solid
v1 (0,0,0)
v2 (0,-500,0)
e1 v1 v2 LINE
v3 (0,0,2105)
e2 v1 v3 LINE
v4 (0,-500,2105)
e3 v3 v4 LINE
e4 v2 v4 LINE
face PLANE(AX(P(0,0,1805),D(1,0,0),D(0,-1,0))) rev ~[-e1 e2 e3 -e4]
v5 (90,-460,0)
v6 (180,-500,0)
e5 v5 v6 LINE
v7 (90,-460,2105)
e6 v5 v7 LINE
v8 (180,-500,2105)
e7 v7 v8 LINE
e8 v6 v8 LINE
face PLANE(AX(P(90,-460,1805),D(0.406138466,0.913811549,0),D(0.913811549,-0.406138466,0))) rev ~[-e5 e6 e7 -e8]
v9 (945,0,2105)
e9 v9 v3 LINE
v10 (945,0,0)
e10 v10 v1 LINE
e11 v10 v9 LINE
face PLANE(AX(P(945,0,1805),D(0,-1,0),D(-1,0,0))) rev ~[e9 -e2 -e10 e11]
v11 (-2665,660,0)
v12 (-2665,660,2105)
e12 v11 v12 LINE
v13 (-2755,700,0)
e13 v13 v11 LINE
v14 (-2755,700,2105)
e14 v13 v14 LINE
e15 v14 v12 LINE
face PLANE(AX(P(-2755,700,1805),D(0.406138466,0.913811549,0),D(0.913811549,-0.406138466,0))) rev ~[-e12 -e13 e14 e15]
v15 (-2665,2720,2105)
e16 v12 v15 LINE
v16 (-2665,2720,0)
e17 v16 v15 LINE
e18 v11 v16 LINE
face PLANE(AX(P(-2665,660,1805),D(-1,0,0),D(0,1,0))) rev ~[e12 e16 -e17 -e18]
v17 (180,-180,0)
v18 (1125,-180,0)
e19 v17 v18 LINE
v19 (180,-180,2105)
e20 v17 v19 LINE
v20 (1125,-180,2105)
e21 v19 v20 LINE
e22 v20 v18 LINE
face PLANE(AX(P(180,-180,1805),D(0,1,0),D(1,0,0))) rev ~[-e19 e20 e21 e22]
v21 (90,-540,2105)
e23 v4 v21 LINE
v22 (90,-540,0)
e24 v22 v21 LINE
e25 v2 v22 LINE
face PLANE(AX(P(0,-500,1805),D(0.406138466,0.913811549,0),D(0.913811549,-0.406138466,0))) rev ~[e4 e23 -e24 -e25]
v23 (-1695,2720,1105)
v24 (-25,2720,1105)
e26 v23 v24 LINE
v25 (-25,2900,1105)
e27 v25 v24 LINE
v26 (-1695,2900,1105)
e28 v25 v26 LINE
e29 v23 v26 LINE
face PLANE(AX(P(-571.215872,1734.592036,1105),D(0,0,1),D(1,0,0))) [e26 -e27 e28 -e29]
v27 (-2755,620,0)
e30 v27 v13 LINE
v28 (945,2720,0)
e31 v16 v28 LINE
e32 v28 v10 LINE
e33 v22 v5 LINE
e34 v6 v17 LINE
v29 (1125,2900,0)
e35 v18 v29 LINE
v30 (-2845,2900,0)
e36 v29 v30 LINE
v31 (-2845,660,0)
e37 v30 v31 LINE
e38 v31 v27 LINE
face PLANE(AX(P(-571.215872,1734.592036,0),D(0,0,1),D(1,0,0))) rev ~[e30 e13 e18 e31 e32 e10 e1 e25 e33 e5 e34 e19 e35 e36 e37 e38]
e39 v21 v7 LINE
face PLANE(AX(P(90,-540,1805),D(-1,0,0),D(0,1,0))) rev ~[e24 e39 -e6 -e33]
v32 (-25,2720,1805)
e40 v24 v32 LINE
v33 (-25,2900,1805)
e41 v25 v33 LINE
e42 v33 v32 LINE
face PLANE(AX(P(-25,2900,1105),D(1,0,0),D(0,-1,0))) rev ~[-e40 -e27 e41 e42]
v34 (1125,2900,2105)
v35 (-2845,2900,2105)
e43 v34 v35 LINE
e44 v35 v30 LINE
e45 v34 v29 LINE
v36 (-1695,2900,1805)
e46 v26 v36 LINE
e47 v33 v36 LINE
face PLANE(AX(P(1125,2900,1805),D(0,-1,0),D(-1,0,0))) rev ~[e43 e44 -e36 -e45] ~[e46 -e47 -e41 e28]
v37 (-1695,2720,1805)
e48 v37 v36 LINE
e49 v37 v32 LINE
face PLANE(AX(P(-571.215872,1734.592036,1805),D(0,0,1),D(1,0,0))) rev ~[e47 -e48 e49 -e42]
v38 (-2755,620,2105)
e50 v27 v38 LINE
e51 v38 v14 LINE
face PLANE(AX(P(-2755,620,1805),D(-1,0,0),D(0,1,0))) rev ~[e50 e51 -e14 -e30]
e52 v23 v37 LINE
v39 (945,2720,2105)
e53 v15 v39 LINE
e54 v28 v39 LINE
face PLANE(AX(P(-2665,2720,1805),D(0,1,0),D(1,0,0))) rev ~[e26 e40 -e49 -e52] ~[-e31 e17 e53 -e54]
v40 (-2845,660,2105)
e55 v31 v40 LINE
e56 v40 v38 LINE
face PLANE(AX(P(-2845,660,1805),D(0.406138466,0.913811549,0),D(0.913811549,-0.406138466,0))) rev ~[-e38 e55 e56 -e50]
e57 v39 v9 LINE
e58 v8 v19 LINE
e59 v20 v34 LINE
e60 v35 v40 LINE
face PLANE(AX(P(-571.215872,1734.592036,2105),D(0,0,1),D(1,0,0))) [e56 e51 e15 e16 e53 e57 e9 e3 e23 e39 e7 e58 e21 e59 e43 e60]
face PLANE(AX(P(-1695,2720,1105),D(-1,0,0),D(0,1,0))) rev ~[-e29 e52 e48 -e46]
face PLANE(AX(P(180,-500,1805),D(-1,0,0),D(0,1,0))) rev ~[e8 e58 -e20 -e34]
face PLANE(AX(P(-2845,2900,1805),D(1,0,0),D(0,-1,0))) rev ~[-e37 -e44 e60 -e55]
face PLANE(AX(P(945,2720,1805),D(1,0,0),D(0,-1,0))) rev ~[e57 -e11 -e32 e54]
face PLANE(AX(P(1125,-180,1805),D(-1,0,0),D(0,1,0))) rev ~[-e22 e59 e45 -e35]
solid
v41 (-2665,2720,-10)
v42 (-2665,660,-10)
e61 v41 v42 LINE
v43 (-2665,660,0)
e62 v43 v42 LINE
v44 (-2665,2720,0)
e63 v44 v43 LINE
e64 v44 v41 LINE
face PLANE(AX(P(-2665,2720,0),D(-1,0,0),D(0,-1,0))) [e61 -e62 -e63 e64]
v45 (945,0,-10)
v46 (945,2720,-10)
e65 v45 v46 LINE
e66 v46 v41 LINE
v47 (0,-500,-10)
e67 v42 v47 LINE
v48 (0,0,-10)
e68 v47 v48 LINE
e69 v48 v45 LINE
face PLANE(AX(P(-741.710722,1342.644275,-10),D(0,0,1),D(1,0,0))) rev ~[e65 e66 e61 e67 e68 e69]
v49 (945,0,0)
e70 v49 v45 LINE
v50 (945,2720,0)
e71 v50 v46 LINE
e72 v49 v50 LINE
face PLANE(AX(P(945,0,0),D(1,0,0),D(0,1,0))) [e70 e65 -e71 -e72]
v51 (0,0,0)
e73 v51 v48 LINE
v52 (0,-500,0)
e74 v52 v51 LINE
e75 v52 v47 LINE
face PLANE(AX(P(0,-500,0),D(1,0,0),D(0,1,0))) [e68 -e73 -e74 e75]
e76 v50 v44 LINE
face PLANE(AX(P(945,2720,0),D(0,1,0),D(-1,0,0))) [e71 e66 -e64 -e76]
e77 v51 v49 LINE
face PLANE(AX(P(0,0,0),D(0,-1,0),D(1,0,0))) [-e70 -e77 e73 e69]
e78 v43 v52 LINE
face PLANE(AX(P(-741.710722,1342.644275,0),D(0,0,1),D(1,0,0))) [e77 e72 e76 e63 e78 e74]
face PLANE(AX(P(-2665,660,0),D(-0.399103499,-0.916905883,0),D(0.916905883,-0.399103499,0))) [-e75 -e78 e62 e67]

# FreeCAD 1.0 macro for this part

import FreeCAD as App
import Part
import Sketcher

V = App.Vector


def add_polygon(sketch, points):
    """Adds a closed chain of lines whose ends are joined by coincident constraints."""
    first, n = sketch.GeometryCount, len(points)
    for a, b in zip(points, points[1:] + points[:1]):
        sketch.addGeometry(Part.LineSegment(App.Vector(*a, 0), App.Vector(*b, 0)), False)
    for i in range(n):
        sketch.addConstraint(Sketcher.Constraint("Coincident", first + i, 2, first + (i + 1) % n, 1))

doc = App.newDocument("Part")
params = doc.addObject("Spreadsheet::Sheet", "Params")
for row, (alias, value) in enumerate([
    ("sketch1_width", "945 mm"),
    ("sketch1_width2", "3970 mm"),
    ("sketch1_width3", "3610 mm"),
    ("sketch1_height", "500 mm"),
    ("sketch1_height2", "80 mm"),
    ("pad1_length", "1105 mm"),
    ("sketch2_width", "970 mm"),
    ("sketch2_width2", "1150 mm"),
    ("sketch2_width3", "945 mm"),
    ("sketch2_height", "180 mm"),
    ("sketch2_height2", "2240 mm"),
    ("pad2_length", "700 mm"),
    ("sketch3_width", "3610 mm"),
    ("sketch3_width2", "945 mm"),
    ("sketch3_width3", "3970 mm"),
    ("sketch3_height", "2240 mm"),
    ("sketch3_height2", "80 mm"),
    ("pad3_length", "300 mm"),
    ("sketch4_width", "945 mm"),
    ("sketch4_width2", "3610 mm"),
    ("sketch4_height", "500 mm"),
    ("sketch4_height2", "2720 mm"),
    ("sketch4_height3", "2060 mm"),
    ("pad4_length", "10 mm"),
], start=1):
    params.set(f"A{row}", alias)
    params.set(f"B{row}", "=" + value)
    params.setAlias(f"B{row}", alias)

body = doc.addObject("PartDesign::Body", "Body")

# Sketch on XY plane
sketch1 = doc.addObject("Sketcher::SketchObject", "Sketch")
body.addObject(sketch1)
sketch1.AttachmentSupport = (doc.XY_Plane, [""])
sketch1.MapMode = "FlatFace"
add_polygon(sketch1, [(945, 0), (0, 0), (0, -500), (90, -540), (90, -460), (180, -500), (180, -180), (1125, -180), (1125, 2900), (-2845, 2900), (-2845, 660), (-2755, 620), (-2755, 700), (-2665, 660), (-2665, 2720), (945, 2720)])  # lines 0-15
sketch1.addConstraint([
    Sketcher.Constraint("Horizontal", 0),
    Sketcher.Constraint("Vertical", 1),
    Sketcher.Constraint("Vertical", 3),
    Sketcher.Constraint("Vertical", 5),
    Sketcher.Constraint("Horizontal", 6),
    Sketcher.Constraint("Vertical", 7),
    Sketcher.Constraint("Horizontal", 8),
    Sketcher.Constraint("Vertical", 9),
    Sketcher.Constraint("Vertical", 11),
    Sketcher.Constraint("Vertical", 13),
    Sketcher.Constraint("Horizontal", 14),
    Sketcher.Constraint("Vertical", 15),
    Sketcher.Constraint("Coincident", 0, 2, -1, 1),
    Sketcher.Constraint("Parallel", 2, 4),
    Sketcher.Constraint("Parallel", 4, 10),
    Sketcher.Constraint("Parallel", 10, 12),
    Sketcher.Constraint("Horizontal", 1, 2, 4, 2),
    Sketcher.Constraint("Horizontal", 9, 2, 12, 2),
    Sketcher.Constraint("Equal", 0, 6),
    Sketcher.Constraint("Equal", 3, 11),
    Sketcher.Constraint("Equal", 2, 4),
    Sketcher.Constraint("Equal", 4, 10),
    Sketcher.Constraint("DistanceX", 0, 2, 0, 1, 945.0),
    Sketcher.Constraint("DistanceX", 8, 2, 8, 1, 3970.0),
    Sketcher.Constraint("DistanceX", 14, 1, 14, 2, 3610.0),
    Sketcher.Constraint("DistanceY", 1, 2, 1, 1, 500.0),
    Sketcher.Constraint("DistanceY", 3, 1, 3, 2, 80.0),
    Sketcher.Constraint("DistanceY", 5, 1, 5, 2, 320.0),
    Sketcher.Constraint("DistanceY", 7, 1, 7, 2, 3080.0),
    Sketcher.Constraint("DistanceY", 9, 2, 9, 1, 2240.0),
    Sketcher.Constraint("DistanceY", 13, 1, 13, 2, 2060.0),
])
sketch1.setExpression("Constraints[38]", "Params.sketch1_width")
sketch1.setExpression("Constraints[39]", "Params.sketch1_width2")
sketch1.setExpression("Constraints[40]", "Params.sketch1_width3")
sketch1.setExpression("Constraints[41]", "Params.sketch1_height")
sketch1.setExpression("Constraints[42]", "Params.sketch1_height2")
pad1 = doc.addObject("PartDesign::Pad", "Pad")
body.addObject(pad1)
pad1.Profile = sketch1
pad1.setExpression("Length", "Params.pad1_length")

# Sketch on XY plane
sketch2 = doc.addObject("Sketcher::SketchObject", "Sketch001")
body.addObject(sketch2)
sketch2.AttachmentSupport = (doc.XY_Plane, [""])
sketch2.MapMode = "FlatFace"
sketch2.AttachmentOffset = App.Placement(V(0, 0, 1105), App.Rotation())
add_polygon(sketch2, [(-2665, 2720), (-1695, 2720), (-1695, 2900), (-2845, 2900), (-2845, 660), (-2755, 620), (-2755, 700), (-2665, 660)])  # lines 0-7
add_polygon(sketch2, [(0, 0), (0, -500), (90, -540), (90, -460), (180, -500), (180, -180), (1125, -180), (1125, 2900), (-25, 2900), (-25, 2720), (945, 2720), (945, 0)])  # lines 8-19
sketch2.addConstraint([
    Sketcher.Constraint("Horizontal", 0),
    Sketcher.Constraint("Vertical", 1),
    Sketcher.Constraint("Horizontal", 2),
    Sketcher.Constraint("Vertical", 3),
    Sketcher.Constraint("Vertical", 5),
    Sketcher.Constraint("Vertical", 7),
    Sketcher.Constraint("Vertical", 8),
    Sketcher.Constraint("Vertical", 10),
    Sketcher.Constraint("Vertical", 12),
    Sketcher.Constraint("Horizontal", 13),
    Sketcher.Constraint("Vertical", 14),
    Sketcher.Constraint("Horizontal", 15),
    Sketcher.Constraint("Vertical", 16),
    Sketcher.Constraint("Horizontal", 17),
    Sketcher.Constraint("Vertical", 18),
    Sketcher.Constraint("Horizontal", 19),
    Sketcher.Constraint("Coincident", 19, 2, -1, 1),
    Sketcher.Constraint("Parallel", 4, 6),
    Sketcher.Constraint("Parallel", 6, 9),
    Sketcher.Constraint("Parallel", 9, 11),
    Sketcher.Constraint("Horizontal", 3, 2, 6, 2),
    Sketcher.Constraint("Horizontal", 8, 2, 11, 2),
    Sketcher.Constraint("Horizontal", 2, 2, 14, 2),
    Sketcher.Constraint("Horizontal", 7, 2, 16, 2),
    Sketcher.Constraint("Equal", 2, 15),
    Sketcher.Constraint("Equal", 0, 17),
    Sketcher.Constraint("Equal", 13, 19),
    Sketcher.Constraint("Equal", 4, 6),
    Sketcher.Constraint("Equal", 6, 9),
    Sketcher.Constraint("DistanceX", 0, 1, 0, 2, 970.0),
    Sketcher.Constraint("DistanceX", 2, 2, 2, 1, 1150.0),
    Sketcher.Constraint("DistanceX", 13, 1, 13, 2, 945.0),
    Sketcher.Constraint("DistanceY", 1, 1, 1, 2, 180.0),
    Sketcher.Constraint("DistanceY", 3, 2, 3, 1, 2240.0),
    Sketcher.Constraint("DistanceY", 5, 1, 5, 2, 80.0),
    Sketcher.Constraint("DistanceY", 8, 2, 8, 1, 500.0),
    Sketcher.Constraint("DistanceY", 12, 1, 12, 2, 320.0),
    Sketcher.Constraint("DistanceY", 14, 1, 14, 2, 3080.0),
    Sketcher.Constraint("DistanceX", 0, 2, -1, 1, 1695.0),
])
sketch2.setExpression("Constraints[49]", "Params.sketch2_width")
sketch2.setExpression("Constraints[50]", "Params.sketch2_width2")
sketch2.setExpression("Constraints[51]", "Params.sketch2_width3")
sketch2.setExpression("Constraints[52]", "Params.sketch2_height")
sketch2.setExpression("Constraints[53]", "Params.sketch2_height2")
pad2 = doc.addObject("PartDesign::Pad", "Pad001")
body.addObject(pad2)
pad2.Profile = sketch2
pad2.setExpression("Length", "Params.pad2_length")

# Sketch on XY plane
sketch3 = doc.addObject("Sketcher::SketchObject", "Sketch002")
body.addObject(sketch3)
sketch3.AttachmentSupport = (doc.XY_Plane, [""])
sketch3.MapMode = "FlatFace"
sketch3.AttachmentOffset = App.Placement(V(0, 0, 1805), App.Rotation())
add_polygon(sketch3, [(-2845, 2900), (-2845, 660), (-2755, 620), (-2755, 700), (-2665, 660), (-2665, 2720), (945, 2720), (945, 0), (0, 0), (0, -500), (90, -540), (90, -460), (180, -500), (180, -180), (1125, -180), (1125, 2900)])  # lines 0-15
sketch3.addConstraint([
    Sketcher.Constraint("Vertical", 0),
    Sketcher.Constraint("Vertical", 2),
    Sketcher.Constraint("Vertical", 4),
    Sketcher.Constraint("Horizontal", 5),
    Sketcher.Constraint("Vertical", 6),
    Sketcher.Constraint("Horizontal", 7),
    Sketcher.Constraint("Vertical", 8),
    Sketcher.Constraint("Vertical", 10),
    Sketcher.Constraint("Vertical", 12),
    Sketcher.Constraint("Horizontal", 13),
    Sketcher.Constraint("Vertical", 14),
    Sketcher.Constraint("Horizontal", 15),
    Sketcher.Constraint("Coincident", 7, 2, -1, 1),
    Sketcher.Constraint("Parallel", 1, 3),
    Sketcher.Constraint("Parallel", 3, 9),
    Sketcher.Constraint("Parallel", 9, 11),
    Sketcher.Constraint("Horizontal", 0, 2, 3, 2),
    Sketcher.Constraint("Horizontal", 8, 2, 11, 2),
    Sketcher.Constraint("Equal", 7, 13),
    Sketcher.Constraint("Equal", 2, 10),
    Sketcher.Constraint("Equal", 1, 3),
    Sketcher.Constraint("Equal", 3, 9),
    Sketcher.Constraint("DistanceX", 5, 1, 5, 2, 3610.0),
    Sketcher.Constraint("DistanceX", 7, 2, 7, 1, 945.0),
    Sketcher.Constraint("DistanceX", 15, 2, 15, 1, 3970.0),
    Sketcher.Constraint("DistanceY", 0, 2, 0, 1, 2240.0),
    Sketcher.Constraint("DistanceY", 2, 1, 2, 2, 80.0),
    Sketcher.Constraint("DistanceY", 4, 1, 4, 2, 2060.0),
    Sketcher.Constraint("DistanceY", 6, 2, 6, 1, 2720.0),
    Sketcher.Constraint("DistanceY", 8, 2, 8, 1, 500.0),
    Sketcher.Constraint("DistanceY", 12, 1, 12, 2, 320.0),
])
sketch3.setExpression("Constraints[38]", "Params.sketch3_width")
sketch3.setExpression("Constraints[39]", "Params.sketch3_width2")
sketch3.setExpression("Constraints[40]", "Params.sketch3_width3")
sketch3.setExpression("Constraints[41]", "Params.sketch3_height")
sketch3.setExpression("Constraints[42]", "Params.sketch3_height2")
pad3 = doc.addObject("PartDesign::Pad", "Pad002")
body.addObject(pad3)
pad3.Profile = sketch3
pad3.setExpression("Length", "Params.pad3_length")
body2 = doc.addObject("PartDesign::Body", "Body001")

# Sketch on XY plane
sketch4 = doc.addObject("Sketcher::SketchObject", "Sketch003")
body2.addObject(sketch4)
sketch4.AttachmentSupport = (doc.getObject("XY_Plane001"), [""])
sketch4.MapMode = "FlatFace"
add_polygon(sketch4, [(0, -500), (0, 0), (945, 0), (945, 2720), (-2665, 2720), (-2665, 660)])  # lines 0-5
sketch4.addConstraint([
    Sketcher.Constraint("Vertical", 0),
    Sketcher.Constraint("Horizontal", 1),
    Sketcher.Constraint("Vertical", 2),
    Sketcher.Constraint("Horizontal", 3),
    Sketcher.Constraint("Vertical", 4),
    Sketcher.Constraint("Coincident", 0, 2, -1, 1),
    Sketcher.Constraint("DistanceX", 1, 1, 1, 2, 945.0),
    Sketcher.Constraint("DistanceX", 3, 2, 3, 1, 3610.0),
    Sketcher.Constraint("DistanceY", 0, 1, 0, 2, 500.0),
    Sketcher.Constraint("DistanceY", 2, 1, 2, 2, 2720.0),
    Sketcher.Constraint("DistanceY", 4, 2, 4, 1, 2060.0),
])
sketch4.setExpression("Constraints[12]", "Params.sketch4_width")
sketch4.setExpression("Constraints[13]", "Params.sketch4_width2")
sketch4.setExpression("Constraints[14]", "Params.sketch4_height")
sketch4.setExpression("Constraints[15]", "Params.sketch4_height2")
sketch4.setExpression("Constraints[16]", "Params.sketch4_height3")
pad4 = doc.addObject("PartDesign::Pad", "Pad003")
body2.addObject(pad4)
pad4.Profile = sketch4
pad4.setExpression("Length", "Params.pad4_length")
pad4.Reversed = True

doc.recompute()
